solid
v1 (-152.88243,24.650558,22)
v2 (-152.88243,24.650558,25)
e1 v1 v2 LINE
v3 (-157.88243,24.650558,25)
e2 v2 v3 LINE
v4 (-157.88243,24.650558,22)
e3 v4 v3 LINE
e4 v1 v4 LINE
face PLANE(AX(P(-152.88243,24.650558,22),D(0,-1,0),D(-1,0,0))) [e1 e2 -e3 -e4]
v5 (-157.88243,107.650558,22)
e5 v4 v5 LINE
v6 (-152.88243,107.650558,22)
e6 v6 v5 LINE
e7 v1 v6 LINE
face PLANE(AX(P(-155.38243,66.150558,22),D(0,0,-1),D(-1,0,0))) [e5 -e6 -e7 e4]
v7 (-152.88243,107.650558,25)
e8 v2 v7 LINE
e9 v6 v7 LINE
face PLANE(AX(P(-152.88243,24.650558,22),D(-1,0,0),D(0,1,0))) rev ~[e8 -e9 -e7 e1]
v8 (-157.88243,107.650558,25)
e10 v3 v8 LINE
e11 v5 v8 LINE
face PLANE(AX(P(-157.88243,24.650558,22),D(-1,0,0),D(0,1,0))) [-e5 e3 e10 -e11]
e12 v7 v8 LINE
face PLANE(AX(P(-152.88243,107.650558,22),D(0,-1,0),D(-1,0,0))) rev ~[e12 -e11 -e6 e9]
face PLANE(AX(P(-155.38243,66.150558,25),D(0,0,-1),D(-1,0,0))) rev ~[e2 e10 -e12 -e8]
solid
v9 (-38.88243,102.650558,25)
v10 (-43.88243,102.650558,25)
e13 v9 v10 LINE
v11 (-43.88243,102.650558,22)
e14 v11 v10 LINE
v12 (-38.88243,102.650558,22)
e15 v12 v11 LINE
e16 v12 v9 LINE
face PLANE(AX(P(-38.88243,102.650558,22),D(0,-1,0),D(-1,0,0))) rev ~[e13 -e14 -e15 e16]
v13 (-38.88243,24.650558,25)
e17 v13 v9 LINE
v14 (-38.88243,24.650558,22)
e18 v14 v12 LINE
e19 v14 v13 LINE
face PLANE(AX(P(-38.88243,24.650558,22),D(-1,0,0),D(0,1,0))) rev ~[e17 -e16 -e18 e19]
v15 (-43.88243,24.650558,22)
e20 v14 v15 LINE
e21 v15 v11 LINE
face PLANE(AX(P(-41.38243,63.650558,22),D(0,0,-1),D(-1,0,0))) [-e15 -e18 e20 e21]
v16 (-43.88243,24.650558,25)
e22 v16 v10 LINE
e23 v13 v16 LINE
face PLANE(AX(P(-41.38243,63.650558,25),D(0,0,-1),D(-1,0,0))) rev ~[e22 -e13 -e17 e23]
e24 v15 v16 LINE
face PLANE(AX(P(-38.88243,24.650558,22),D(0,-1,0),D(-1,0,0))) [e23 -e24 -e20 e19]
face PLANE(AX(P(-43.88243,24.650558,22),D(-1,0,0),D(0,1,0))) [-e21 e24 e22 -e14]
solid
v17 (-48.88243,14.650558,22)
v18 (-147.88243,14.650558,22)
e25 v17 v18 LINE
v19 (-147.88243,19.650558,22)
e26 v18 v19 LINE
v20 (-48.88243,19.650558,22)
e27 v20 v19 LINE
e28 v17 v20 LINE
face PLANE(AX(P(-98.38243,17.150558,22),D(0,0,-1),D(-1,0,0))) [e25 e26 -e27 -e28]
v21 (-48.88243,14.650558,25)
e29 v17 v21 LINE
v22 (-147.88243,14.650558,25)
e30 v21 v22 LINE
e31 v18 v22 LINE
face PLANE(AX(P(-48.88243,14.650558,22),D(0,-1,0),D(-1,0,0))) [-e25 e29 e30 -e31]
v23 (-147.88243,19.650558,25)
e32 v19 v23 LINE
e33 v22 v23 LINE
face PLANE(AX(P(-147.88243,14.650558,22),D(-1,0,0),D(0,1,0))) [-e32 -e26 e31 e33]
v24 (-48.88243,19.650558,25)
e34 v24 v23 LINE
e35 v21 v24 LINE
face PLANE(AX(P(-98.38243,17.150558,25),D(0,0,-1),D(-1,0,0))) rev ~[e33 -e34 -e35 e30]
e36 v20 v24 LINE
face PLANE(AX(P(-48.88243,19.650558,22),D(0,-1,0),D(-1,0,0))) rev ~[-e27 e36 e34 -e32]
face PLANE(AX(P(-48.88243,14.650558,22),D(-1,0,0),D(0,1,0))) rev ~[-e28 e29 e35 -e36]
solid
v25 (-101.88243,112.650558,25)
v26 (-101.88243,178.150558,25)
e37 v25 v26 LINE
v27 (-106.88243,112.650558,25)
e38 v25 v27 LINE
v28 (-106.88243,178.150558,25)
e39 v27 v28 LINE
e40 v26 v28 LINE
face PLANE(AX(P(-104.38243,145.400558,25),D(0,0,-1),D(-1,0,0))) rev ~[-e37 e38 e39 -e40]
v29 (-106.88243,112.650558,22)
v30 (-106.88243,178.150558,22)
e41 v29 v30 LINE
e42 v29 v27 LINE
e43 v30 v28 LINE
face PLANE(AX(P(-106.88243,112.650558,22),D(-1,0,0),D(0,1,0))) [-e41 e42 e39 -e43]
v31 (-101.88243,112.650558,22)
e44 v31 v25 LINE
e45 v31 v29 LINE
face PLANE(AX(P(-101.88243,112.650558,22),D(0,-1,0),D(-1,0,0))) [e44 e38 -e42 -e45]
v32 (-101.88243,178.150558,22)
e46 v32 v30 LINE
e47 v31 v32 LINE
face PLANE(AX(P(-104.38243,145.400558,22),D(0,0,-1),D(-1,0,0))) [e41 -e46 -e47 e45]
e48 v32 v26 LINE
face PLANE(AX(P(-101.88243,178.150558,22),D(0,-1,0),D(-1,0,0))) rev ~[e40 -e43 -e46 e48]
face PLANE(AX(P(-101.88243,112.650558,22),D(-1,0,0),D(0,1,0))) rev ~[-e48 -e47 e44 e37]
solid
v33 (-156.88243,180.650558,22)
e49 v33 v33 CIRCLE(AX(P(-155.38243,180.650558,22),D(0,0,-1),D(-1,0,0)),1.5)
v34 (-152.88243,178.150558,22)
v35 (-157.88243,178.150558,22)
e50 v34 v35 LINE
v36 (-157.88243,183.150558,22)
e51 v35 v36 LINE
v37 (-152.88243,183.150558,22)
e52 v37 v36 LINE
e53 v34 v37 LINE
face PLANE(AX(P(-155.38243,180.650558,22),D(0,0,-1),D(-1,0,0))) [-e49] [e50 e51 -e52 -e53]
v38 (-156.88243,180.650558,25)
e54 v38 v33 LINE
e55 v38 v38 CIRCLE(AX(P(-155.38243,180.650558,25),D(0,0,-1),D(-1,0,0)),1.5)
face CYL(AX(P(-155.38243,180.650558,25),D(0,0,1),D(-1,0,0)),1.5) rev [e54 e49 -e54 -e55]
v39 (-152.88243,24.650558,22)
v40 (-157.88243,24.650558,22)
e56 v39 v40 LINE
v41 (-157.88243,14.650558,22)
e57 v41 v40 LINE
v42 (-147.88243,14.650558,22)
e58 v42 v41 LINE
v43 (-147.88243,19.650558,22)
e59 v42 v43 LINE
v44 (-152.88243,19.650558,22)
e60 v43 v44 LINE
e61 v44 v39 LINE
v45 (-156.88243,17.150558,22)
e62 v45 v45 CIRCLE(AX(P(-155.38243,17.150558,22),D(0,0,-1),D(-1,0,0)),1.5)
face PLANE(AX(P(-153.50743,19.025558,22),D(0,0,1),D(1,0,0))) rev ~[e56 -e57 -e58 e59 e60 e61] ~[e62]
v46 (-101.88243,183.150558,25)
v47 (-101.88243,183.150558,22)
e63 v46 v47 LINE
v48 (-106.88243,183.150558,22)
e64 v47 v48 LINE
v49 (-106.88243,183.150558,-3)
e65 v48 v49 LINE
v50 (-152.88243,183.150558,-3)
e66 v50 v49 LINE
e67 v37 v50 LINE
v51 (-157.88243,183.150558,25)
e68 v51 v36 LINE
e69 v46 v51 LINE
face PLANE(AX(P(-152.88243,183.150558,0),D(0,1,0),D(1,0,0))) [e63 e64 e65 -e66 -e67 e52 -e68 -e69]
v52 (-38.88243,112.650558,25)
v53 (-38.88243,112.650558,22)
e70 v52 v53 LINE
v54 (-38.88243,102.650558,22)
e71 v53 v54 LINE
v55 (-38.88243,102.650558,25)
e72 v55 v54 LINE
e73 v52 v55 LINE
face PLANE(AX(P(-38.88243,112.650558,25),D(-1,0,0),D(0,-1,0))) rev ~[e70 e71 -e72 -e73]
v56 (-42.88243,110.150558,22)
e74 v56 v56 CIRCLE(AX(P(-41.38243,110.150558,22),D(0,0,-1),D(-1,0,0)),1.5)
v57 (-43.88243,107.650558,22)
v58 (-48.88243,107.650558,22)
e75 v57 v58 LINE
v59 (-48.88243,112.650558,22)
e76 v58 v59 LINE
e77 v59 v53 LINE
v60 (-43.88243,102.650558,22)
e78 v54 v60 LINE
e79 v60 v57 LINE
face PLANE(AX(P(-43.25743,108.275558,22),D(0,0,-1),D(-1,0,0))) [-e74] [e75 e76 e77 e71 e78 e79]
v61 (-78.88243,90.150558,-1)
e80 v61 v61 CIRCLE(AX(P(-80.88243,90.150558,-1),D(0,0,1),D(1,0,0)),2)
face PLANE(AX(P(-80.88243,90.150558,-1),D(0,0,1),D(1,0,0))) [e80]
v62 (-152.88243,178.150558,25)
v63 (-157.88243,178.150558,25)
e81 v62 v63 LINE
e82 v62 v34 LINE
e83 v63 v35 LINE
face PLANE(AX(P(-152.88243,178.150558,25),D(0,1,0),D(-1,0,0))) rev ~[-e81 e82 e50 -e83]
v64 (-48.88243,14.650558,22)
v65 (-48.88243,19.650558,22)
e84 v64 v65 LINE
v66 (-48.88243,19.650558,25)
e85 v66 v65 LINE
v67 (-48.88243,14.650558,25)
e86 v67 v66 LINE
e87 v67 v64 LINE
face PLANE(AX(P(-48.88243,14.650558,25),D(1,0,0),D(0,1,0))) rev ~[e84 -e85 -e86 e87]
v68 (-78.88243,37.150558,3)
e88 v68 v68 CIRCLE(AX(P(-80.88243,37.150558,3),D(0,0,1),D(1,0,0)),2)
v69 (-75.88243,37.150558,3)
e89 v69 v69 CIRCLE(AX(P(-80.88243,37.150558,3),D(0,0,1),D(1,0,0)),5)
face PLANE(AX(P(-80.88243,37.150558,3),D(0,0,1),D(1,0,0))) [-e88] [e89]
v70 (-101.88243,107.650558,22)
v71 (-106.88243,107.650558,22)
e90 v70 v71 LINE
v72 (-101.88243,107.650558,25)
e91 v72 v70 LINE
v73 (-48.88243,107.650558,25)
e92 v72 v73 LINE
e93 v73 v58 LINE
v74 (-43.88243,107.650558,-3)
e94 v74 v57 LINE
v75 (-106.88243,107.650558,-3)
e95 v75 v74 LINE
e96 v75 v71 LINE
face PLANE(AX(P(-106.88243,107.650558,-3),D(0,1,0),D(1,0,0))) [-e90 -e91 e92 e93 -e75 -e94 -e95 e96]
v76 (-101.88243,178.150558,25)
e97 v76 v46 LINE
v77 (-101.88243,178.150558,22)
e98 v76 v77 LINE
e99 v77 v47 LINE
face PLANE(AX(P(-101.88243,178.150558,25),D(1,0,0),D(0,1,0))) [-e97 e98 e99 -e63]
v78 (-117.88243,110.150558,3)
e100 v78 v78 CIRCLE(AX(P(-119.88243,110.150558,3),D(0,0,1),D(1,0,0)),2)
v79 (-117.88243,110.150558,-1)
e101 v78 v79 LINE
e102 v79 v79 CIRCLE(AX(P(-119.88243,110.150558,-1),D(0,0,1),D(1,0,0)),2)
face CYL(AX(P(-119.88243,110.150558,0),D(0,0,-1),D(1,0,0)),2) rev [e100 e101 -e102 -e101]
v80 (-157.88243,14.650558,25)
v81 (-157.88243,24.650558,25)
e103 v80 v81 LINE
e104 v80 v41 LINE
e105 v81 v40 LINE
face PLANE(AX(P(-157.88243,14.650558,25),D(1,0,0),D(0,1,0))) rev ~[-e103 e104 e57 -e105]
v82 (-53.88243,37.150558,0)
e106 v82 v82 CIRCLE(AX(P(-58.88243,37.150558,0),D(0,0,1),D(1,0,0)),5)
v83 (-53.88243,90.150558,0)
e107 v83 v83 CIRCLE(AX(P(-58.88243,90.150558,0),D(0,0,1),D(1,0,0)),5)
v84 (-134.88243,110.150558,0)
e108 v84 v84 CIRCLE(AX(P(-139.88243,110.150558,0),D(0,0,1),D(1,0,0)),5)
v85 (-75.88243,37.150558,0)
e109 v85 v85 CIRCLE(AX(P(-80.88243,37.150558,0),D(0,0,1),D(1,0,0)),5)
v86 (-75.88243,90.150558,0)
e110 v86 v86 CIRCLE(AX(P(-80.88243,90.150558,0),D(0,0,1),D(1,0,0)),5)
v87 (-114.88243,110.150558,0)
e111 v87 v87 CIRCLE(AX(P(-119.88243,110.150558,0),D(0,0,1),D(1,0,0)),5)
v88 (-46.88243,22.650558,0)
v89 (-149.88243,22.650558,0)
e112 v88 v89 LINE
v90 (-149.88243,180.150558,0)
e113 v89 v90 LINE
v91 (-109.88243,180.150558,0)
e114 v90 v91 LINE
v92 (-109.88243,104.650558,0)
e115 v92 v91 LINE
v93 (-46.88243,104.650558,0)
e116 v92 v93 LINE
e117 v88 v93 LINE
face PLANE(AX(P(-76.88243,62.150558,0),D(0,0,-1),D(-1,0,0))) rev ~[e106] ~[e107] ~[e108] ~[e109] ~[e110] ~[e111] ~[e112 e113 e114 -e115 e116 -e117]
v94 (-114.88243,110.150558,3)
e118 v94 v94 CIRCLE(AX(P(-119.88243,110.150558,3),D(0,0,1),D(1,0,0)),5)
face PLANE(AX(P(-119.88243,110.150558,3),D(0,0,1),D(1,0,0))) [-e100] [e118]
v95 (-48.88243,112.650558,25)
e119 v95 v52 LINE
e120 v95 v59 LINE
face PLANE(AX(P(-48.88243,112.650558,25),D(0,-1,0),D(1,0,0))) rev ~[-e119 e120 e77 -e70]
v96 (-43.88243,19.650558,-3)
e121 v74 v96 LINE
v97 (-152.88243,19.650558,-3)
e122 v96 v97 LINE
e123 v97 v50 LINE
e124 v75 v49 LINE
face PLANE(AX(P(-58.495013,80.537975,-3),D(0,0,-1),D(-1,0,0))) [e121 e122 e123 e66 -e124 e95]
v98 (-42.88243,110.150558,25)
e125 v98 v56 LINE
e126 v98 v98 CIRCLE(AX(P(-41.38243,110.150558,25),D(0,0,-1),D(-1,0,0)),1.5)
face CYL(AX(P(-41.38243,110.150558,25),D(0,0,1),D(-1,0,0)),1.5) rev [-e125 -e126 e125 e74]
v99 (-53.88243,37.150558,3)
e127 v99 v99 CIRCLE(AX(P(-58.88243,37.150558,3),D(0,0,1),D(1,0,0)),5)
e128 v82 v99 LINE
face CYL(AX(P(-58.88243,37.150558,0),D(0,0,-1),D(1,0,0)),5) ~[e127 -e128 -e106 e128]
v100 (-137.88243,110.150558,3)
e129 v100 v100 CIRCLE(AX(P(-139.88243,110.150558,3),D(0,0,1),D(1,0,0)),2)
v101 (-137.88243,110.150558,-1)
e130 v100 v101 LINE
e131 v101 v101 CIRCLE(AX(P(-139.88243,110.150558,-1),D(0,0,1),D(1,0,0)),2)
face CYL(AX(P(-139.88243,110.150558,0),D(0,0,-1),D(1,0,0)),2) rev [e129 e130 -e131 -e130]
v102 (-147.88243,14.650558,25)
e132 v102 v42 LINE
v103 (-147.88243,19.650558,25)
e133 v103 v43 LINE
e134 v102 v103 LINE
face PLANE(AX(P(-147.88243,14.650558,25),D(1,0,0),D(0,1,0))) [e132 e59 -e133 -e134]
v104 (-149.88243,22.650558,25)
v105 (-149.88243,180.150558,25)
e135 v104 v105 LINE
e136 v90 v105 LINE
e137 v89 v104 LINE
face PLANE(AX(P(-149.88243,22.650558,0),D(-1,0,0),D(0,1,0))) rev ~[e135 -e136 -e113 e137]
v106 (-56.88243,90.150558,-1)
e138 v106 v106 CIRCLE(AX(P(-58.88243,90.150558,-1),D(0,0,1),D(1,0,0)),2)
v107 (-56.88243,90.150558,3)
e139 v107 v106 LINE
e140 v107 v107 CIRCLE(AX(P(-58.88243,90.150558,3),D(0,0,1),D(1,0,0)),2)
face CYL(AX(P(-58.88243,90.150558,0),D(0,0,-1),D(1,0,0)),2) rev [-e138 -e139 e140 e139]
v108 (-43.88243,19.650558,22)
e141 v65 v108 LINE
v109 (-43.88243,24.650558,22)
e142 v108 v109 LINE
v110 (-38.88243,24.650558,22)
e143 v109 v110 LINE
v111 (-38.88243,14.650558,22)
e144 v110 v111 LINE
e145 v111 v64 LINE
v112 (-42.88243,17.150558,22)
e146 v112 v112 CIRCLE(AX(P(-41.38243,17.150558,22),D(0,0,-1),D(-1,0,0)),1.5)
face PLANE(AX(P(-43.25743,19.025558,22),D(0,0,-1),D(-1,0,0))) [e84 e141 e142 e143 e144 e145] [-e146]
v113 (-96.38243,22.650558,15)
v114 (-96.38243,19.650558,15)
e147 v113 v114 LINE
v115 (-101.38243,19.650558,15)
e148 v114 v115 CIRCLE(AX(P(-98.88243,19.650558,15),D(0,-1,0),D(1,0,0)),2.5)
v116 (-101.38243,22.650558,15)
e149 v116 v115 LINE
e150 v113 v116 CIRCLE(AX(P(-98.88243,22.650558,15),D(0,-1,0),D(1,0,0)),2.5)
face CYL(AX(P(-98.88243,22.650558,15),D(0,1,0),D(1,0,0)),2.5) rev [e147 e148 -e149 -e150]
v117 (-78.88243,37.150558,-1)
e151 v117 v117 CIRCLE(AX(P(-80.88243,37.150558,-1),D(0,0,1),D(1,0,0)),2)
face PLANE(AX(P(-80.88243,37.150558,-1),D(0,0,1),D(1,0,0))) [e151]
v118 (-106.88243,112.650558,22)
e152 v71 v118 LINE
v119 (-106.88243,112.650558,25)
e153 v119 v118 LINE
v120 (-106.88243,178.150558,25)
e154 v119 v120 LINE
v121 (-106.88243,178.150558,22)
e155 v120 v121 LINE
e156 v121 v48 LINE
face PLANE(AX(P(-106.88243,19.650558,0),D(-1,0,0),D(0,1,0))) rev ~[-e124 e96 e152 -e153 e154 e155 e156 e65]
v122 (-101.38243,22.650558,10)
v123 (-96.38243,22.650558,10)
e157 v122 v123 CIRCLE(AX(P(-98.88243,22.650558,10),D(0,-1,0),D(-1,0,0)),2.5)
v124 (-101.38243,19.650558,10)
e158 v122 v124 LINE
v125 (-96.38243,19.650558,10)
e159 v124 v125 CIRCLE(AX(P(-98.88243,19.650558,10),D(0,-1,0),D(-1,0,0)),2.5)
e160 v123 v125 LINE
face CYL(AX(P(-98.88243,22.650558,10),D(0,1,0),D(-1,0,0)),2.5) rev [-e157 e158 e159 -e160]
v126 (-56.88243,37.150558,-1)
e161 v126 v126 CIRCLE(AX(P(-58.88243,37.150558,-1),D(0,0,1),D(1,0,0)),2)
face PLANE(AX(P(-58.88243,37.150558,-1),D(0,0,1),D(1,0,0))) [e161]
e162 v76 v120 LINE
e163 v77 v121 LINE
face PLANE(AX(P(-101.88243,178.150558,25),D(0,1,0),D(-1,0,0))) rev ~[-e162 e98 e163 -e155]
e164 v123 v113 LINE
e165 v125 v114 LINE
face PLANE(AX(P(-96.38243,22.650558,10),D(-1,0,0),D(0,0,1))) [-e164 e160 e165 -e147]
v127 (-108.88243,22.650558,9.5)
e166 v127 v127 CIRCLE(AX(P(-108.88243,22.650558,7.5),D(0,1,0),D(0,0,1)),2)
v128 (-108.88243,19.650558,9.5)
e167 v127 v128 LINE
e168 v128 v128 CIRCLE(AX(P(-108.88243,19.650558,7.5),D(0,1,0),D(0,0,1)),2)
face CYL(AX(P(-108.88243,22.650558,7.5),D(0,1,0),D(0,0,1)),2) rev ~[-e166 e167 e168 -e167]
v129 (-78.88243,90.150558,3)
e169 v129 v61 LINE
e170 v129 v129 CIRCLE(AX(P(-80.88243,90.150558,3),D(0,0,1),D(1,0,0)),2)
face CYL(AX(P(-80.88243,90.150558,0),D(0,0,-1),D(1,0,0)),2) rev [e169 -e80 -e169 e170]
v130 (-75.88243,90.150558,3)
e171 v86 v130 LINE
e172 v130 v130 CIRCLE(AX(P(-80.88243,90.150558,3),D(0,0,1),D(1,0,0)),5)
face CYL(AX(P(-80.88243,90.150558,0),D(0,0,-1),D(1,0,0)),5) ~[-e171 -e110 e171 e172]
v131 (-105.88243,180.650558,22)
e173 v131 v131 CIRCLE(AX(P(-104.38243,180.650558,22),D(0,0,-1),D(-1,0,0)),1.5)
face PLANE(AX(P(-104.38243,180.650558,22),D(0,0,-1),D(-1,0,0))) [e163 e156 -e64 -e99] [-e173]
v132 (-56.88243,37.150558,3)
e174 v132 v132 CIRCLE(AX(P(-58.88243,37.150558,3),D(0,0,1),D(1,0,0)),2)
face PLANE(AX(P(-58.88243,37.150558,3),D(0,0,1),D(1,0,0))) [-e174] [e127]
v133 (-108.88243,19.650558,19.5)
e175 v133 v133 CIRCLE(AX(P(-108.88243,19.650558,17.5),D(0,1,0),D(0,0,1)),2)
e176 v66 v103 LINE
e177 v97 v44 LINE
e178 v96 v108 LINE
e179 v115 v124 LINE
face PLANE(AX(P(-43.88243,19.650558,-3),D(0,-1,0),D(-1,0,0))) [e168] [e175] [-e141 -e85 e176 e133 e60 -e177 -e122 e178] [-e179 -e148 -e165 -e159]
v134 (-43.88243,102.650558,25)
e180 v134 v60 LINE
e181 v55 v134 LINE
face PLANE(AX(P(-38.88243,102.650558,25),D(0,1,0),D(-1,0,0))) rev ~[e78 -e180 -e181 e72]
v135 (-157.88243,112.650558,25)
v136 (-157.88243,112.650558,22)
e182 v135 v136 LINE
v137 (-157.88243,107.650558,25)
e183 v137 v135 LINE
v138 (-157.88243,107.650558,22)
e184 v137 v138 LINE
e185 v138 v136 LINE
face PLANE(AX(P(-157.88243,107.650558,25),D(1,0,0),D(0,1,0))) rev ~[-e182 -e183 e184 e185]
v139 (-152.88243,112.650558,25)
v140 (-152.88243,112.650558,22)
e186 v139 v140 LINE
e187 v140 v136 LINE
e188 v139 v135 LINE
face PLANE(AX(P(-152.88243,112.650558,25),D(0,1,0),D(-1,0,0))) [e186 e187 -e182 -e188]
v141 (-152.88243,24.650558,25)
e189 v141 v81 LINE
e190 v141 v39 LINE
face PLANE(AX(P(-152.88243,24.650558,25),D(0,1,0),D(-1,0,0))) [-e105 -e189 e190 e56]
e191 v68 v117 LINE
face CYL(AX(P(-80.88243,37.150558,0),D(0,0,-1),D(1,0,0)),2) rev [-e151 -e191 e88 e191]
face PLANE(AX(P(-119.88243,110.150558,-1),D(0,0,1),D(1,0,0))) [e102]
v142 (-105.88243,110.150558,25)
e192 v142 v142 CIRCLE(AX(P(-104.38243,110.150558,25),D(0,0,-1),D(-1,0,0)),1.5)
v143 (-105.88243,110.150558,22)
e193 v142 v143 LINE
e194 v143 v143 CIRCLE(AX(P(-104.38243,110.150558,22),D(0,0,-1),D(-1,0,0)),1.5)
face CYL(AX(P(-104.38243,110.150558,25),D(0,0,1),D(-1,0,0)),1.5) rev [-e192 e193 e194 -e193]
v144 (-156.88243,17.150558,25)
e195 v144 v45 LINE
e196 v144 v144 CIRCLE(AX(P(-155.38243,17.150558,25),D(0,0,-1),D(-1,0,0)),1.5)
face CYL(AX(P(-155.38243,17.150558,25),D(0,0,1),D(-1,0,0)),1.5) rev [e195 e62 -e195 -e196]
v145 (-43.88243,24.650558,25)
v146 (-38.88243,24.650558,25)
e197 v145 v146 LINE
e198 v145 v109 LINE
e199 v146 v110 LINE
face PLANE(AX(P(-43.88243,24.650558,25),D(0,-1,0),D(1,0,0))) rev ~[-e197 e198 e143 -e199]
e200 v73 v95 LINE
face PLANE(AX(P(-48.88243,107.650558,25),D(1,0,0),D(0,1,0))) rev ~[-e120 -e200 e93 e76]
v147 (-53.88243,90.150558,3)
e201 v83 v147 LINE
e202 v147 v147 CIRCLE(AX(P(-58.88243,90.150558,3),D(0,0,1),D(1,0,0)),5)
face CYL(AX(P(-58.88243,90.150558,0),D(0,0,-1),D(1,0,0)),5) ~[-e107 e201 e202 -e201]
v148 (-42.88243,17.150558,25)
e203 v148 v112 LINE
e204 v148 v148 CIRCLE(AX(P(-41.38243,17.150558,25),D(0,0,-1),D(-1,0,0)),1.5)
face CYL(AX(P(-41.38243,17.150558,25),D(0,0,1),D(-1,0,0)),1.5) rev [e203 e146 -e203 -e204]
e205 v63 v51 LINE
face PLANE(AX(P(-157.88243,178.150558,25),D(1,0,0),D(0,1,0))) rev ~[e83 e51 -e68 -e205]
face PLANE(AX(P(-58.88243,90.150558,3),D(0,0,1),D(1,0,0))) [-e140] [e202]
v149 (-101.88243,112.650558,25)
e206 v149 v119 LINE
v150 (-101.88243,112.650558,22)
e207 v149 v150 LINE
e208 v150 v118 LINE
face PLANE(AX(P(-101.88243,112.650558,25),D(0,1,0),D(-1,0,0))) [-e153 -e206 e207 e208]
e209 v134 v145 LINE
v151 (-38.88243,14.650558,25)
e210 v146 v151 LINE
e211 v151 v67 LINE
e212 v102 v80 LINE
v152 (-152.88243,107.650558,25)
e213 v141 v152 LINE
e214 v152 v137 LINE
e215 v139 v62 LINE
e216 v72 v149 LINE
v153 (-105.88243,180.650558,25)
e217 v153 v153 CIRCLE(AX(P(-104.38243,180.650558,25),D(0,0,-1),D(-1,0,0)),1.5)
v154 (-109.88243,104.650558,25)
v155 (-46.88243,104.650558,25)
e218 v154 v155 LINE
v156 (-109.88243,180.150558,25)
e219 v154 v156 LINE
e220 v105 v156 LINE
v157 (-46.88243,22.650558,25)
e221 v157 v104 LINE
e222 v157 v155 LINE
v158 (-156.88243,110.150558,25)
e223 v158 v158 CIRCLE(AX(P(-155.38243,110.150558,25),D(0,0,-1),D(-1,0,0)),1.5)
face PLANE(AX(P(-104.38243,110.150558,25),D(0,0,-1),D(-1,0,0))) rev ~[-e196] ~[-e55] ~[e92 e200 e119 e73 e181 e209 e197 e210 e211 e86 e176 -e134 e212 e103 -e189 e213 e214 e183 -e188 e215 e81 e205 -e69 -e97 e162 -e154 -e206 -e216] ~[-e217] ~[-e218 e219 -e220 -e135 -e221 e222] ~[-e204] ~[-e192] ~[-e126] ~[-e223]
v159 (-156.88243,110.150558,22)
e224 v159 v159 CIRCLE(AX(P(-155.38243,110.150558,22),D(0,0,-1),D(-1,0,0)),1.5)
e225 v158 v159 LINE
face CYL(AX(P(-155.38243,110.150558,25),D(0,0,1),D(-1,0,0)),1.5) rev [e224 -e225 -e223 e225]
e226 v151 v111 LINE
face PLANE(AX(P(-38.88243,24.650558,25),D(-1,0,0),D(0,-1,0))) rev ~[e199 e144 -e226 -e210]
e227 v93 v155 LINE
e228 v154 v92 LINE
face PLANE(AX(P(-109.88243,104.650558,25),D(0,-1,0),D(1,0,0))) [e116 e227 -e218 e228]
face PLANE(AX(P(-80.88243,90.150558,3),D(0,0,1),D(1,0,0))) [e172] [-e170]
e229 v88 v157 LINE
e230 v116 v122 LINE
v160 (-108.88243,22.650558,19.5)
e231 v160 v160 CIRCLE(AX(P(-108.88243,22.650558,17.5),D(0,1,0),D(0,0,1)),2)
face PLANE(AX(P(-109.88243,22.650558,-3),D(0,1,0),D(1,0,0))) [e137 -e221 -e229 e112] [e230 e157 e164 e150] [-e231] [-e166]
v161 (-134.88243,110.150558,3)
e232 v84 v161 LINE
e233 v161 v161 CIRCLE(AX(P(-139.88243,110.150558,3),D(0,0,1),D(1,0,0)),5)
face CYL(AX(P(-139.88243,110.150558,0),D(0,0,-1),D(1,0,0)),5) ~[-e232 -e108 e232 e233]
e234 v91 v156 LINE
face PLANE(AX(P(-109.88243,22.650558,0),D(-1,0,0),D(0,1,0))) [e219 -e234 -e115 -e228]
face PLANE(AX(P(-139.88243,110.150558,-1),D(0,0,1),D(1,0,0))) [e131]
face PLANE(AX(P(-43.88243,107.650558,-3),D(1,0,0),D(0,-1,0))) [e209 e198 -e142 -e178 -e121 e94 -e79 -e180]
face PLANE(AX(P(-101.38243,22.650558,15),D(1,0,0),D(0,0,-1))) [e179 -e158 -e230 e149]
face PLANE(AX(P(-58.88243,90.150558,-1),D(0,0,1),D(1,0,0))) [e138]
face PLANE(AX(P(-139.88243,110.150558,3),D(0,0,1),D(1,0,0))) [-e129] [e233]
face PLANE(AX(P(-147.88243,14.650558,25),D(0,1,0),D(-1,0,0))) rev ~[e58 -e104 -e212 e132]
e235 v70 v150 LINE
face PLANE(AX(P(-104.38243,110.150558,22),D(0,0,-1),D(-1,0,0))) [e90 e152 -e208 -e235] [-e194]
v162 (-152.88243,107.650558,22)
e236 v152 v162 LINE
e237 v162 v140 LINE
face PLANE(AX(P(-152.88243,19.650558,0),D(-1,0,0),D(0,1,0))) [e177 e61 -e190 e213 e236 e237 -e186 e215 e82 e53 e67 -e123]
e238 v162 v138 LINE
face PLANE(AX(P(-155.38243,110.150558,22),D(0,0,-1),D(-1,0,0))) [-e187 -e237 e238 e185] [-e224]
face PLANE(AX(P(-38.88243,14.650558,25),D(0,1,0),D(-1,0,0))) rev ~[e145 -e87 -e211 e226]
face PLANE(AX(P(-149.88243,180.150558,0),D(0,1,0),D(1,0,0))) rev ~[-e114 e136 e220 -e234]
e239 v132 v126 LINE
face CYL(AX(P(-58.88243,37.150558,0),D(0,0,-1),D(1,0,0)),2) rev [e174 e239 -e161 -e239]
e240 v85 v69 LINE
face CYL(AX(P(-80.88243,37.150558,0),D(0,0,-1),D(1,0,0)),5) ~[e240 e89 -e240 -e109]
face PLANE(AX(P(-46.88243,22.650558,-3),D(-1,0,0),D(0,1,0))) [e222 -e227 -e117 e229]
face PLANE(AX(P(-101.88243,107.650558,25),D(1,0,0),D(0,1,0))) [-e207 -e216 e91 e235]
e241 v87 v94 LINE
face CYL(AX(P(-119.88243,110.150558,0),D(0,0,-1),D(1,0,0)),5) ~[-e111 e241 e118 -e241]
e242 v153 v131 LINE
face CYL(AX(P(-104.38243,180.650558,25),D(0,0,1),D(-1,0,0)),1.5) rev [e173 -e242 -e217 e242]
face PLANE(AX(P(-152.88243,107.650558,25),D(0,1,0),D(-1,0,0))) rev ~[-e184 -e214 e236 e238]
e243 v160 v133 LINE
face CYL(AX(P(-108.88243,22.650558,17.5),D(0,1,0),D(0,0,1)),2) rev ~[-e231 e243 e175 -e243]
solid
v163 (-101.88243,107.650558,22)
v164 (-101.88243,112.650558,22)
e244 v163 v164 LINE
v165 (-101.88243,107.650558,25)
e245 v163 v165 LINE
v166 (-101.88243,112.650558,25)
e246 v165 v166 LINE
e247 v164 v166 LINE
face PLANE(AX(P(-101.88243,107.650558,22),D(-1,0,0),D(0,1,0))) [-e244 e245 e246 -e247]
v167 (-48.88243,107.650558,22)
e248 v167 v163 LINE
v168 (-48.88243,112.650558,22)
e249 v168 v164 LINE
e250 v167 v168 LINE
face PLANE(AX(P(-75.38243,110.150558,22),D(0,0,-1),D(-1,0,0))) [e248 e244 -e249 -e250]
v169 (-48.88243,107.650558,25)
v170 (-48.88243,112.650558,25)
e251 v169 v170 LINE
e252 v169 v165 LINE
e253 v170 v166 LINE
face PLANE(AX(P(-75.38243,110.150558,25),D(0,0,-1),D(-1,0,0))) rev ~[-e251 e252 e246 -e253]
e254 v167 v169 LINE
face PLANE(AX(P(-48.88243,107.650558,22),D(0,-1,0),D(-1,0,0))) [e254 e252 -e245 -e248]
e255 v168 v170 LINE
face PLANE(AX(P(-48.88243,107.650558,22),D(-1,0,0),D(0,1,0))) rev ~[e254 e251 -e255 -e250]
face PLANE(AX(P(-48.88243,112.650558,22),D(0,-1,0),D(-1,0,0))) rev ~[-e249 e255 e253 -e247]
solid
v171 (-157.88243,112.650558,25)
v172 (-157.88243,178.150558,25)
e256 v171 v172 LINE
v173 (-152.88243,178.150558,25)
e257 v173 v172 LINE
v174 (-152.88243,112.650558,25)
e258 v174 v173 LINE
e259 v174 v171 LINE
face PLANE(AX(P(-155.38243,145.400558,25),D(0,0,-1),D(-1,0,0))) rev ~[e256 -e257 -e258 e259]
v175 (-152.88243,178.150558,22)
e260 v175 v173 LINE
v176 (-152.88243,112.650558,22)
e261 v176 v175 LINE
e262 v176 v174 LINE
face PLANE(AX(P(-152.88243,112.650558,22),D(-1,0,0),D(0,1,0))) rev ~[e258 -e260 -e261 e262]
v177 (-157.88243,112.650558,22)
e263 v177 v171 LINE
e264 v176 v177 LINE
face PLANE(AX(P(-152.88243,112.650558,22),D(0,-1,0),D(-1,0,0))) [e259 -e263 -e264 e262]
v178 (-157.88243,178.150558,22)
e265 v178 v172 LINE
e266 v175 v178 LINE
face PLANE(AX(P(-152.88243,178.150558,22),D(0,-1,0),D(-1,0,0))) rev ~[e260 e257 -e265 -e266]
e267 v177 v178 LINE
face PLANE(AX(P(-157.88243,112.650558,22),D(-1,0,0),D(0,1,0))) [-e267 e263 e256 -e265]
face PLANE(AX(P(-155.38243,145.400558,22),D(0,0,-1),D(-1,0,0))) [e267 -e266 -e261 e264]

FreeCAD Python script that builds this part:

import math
import FreeCAD as App
import Part
import Sketcher

V = App.Vector
Q = App.Units.Quantity


def add_polygon(sketch, points):
    """Adds a closed chain of lines whose ends are joined by coincident constraints."""
    first, n = sketch.GeometryCount, len(points)
    for a, b in zip(points, points[1:] + points[:1]):
        sketch.addGeometry(Part.LineSegment(App.Vector(*a, 0), App.Vector(*b, 0)), False)
    for i in range(n):
        sketch.addConstraint(Sketcher.Constraint("Coincident", first + i, 2, first + (i + 1) % n, 1))

doc = App.newDocument("Part")
body = doc.addObject("PartDesign::Body", "Body")

# Sketch on XY plane
sketch1 = body.newObject("Sketcher::SketchObject", "Sketch")
sketch1.AttachmentSupport = (doc.getObject("XY_Plane"), [""])
sketch1.MapMode = "FlatFace"
add_polygon(sketch1, [(-149.88243, 22.650558), (-109.88243, 22.650558), (-109.88243, 180.150558), (-149.88243, 180.150558)])  # lines 0-3
sketch1.addConstraint([
    Sketcher.Constraint("Horizontal", 0),
    Sketcher.Constraint("Vertical", 1),
    Sketcher.Constraint("Horizontal", 2),
    Sketcher.Constraint("Vertical", 3),
    Sketcher.Constraint("DistanceX", 0, 1, 0, 2, Q("40 mm")),
    Sketcher.Constraint("DistanceY", 1, 1, 1, 2, Q("157.5 mm")),
    Sketcher.Constraint("DistanceX", 0, 2, -1, 1, Q("109.88243 mm")),
    Sketcher.Constraint("DistanceY", -1, 1, 0, 2, Q("22.650558 mm")),
])
pad1 = body.newObject("PartDesign::Pad", "Pad")
pad1.Profile = sketch1
pad1.Length = 3
pad1.Reversed = True
body2 = doc.addObject("PartDesign::Body", "Body001")

# Sketch on XY plane
sketch2 = body2.newObject("Sketcher::SketchObject", "Sketch001")
sketch2.AttachmentSupport = (doc.getObject("XY_Plane001"), [""])
sketch2.MapMode = "FlatFace"
add_polygon(sketch2, [(-152.88243, 183.150558), (-152.88243, 19.650558), (-106.88243, 19.650558), (-106.88243, 183.150558)])  # lines 0-3
sketch2.addConstraint([
    Sketcher.Constraint("Vertical", 0),
    Sketcher.Constraint("Horizontal", 1),
    Sketcher.Constraint("Vertical", 2),
    Sketcher.Constraint("Horizontal", 3),
    Sketcher.Constraint("DistanceX", 1, 1, 1, 2, Q("46 mm")),
    Sketcher.Constraint("DistanceY", 0, 2, 0, 1, Q("163.5 mm")),
    Sketcher.Constraint("DistanceX", 0, 2, -1, 1, Q("152.88243 mm")),
    Sketcher.Constraint("DistanceY", -1, 1, 0, 2, Q("19.650558 mm")),
])
pad2 = body2.newObject("PartDesign::Pad", "Pad001")
pad2.Profile = sketch2
pad2.Length = 3
pad2.Reversed = True
doc.recompute()

boolean = body.newObject("PartDesign::Boolean", "Boolean")
boolean.Type = "Fuse"
boolean.addObjects([body2])

# Sketch on XY plane
sketch3 = body.newObject("Sketcher::SketchObject", "Sketch002")
sketch3.AttachmentSupport = (doc.getObject("XY_Plane"), [""])
sketch3.MapMode = "FlatFace"
add_polygon(sketch3, [(-152.88243, 183.150558), (-152.88243, 19.650558), (-106.88243, 19.650558), (-106.88243, 183.150558)])  # lines 0-3
add_polygon(sketch3, [(-109.88243, 22.650558), (-149.88243, 22.650558), (-149.88243, 180.150558), (-109.88243, 180.150558)])  # lines 4-7
sketch3.addConstraint([
    Sketcher.Constraint("Vertical", 0),
    Sketcher.Constraint("Horizontal", 1),
    Sketcher.Constraint("Vertical", 2),
    Sketcher.Constraint("Horizontal", 3),
    Sketcher.Constraint("Horizontal", 4),
    Sketcher.Constraint("Vertical", 5),
    Sketcher.Constraint("Horizontal", 6),
    Sketcher.Constraint("Vertical", 7),
    Sketcher.Constraint("DistanceX", 1, 1, 1, 2, Q("46 mm")),
    Sketcher.Constraint("DistanceX", 4, 2, 4, 1, Q("40 mm")),
    Sketcher.Constraint("DistanceY", 0, 2, 0, 1, Q("163.5 mm")),
    Sketcher.Constraint("DistanceY", 5, 1, 5, 2, Q("157.5 mm")),
    Sketcher.Constraint("DistanceX", 0, 2, 4, 2, Q("3 mm")),
    Sketcher.Constraint("DistanceY", 0, 2, 4, 2, Q("3 mm")),
    Sketcher.Constraint("DistanceX", 0, 2, -1, 1, Q("152.88243 mm")),
    Sketcher.Constraint("DistanceY", -1, 1, 0, 2, Q("19.650558 mm")),
])
pad3 = body.newObject("PartDesign::Pad", "Pad002")
pad3.Profile = sketch3
pad3.Length = 25

# Sketch on XY plane
sketch4 = body.newObject("Sketcher::SketchObject", "Sketch003")
sketch4.AttachmentSupport = (doc.getObject("XY_Plane"), [""])
sketch4.MapMode = "FlatFace"
sketch4.AttachmentOffset = App.Placement(V(0, 0, -3), App.Rotation())
add_polygon(sketch4, [(-46.88243, 104.650558), (-46.88243, 19.650558), (-106.88243, 19.650558), (-106.88243, 104.650558)])  # lines 0-3
sketch4.addConstraint([
    Sketcher.Constraint("Vertical", 0),
    Sketcher.Constraint("Horizontal", 1),
    Sketcher.Constraint("Vertical", 2),
    Sketcher.Constraint("Horizontal", 3),
    Sketcher.Constraint("DistanceX", 1, 2, 1, 1, Q("60 mm")),
    Sketcher.Constraint("DistanceY", 0, 2, 0, 1, Q("85 mm")),
    Sketcher.Constraint("DistanceX", 0, 2, -1, 1, Q("46.88243 mm")),
    Sketcher.Constraint("DistanceY", -1, 1, 0, 2, Q("19.650558 mm")),
])
pad4 = body.newObject("PartDesign::Pad", "Pad003")
pad4.Profile = sketch4
pad4.Length = 3

# Sketch on XY plane
sketch5 = body.newObject("Sketcher::SketchObject", "Sketch004")
sketch5.AttachmentSupport = (doc.getObject("XY_Plane"), [""])
sketch5.MapMode = "FlatFace"
sketch5.AttachmentOffset = App.Placement(V(0, 0, -3), App.Rotation())
add_polygon(sketch5, [(-106.88243, 104.650558), (-106.88243, 107.650558), (-43.88243, 107.650558), (-43.88243, 19.650558), (-106.88243, 19.650558), (-109.88243, 22.650558), (-46.88243, 22.650558), (-46.88243, 104.650558)])  # lines 0-7
sketch5.addConstraint([
    Sketcher.Constraint("Vertical", 0),
    Sketcher.Constraint("Horizontal", 1),
    Sketcher.Constraint("Vertical", 2),
    Sketcher.Constraint("Horizontal", 3),
    Sketcher.Constraint("Horizontal", 5),
    Sketcher.Constraint("Vertical", 6),
    Sketcher.Constraint("Horizontal", 7),
    Sketcher.Constraint("Vertical", 0, 2, 3, 2),
    Sketcher.Constraint("Equal", 3, 5),
    Sketcher.Constraint("DistanceX", 1, 1, 1, 2, Q("63 mm")),
    Sketcher.Constraint("DistanceX", 7, 2, 7, 1, Q("60 mm")),
    Sketcher.Constraint("DistanceY", 0, 1, 0, 2, Q("3 mm")),
    Sketcher.Constraint("DistanceY", 2, 2, 2, 1, Q("88 mm")),
    Sketcher.Constraint("DistanceY", 6, 1, 6, 2, Q("82 mm")),
    Sketcher.Constraint("DistanceX", 0, 2, -1, 1, Q("106.88243 mm")),
    Sketcher.Constraint("DistanceY", -1, 1, 0, 2, Q("107.650558 mm")),
])
pad5 = body.newObject("PartDesign::Pad", "Pad004")
pad5.Profile = sketch5
pad5.Length = 28

# Sketch on XY plane
sketch6 = body.newObject("Sketcher::SketchObject", "Sketch005")
sketch6.AttachmentSupport = (doc.getObject("XY_Plane"), [""])
sketch6.MapMode = "FlatFace"
sketch6.AttachmentOffset = App.Placement(V(0, 0, 25), App.Rotation())
add_polygon(sketch6, [(-109.88243, 104.650558), (-109.88243, 22.650558), (-106.88243, 22.650558), (-106.88243, 104.650558)])  # lines 0-3
sketch6.addConstraint([
    Sketcher.Constraint("Vertical", 0),
    Sketcher.Constraint("Horizontal", 1),
    Sketcher.Constraint("Vertical", 2),
    Sketcher.Constraint("Horizontal", 3),
    Sketcher.Constraint("DistanceX", 1, 1, 1, 2, Q("3 mm")),
    Sketcher.Constraint("DistanceY", 0, 2, 0, 1, Q("82 mm")),
    Sketcher.Constraint("DistanceX", 0, 2, -1, 1, Q("109.88243 mm")),
    Sketcher.Constraint("DistanceY", -1, 1, 0, 2, Q("22.650558 mm")),
])
pocket1 = body.newObject("PartDesign::Pocket", "Pocket")
pocket1.Profile = sketch6
pocket1.Length = 25

# Sketch on XY plane
sketch7 = body.newObject("Sketcher::SketchObject", "Sketch006")
sketch7.AttachmentSupport = (doc.getObject("XY_Plane"), [""])
sketch7.MapMode = "FlatFace"
sketch7.addGeometry([
    Part.Circle(V(-119.88243, 110.150558, 0), V(0, 0, 1), 5),
    Part.Circle(V(-119.88243, 110.150558, 0), V(0, 0, 1), 2),
    Part.Circle(V(-139.88243, 110.150558, 0), V(0, 0, 1), 5),
    Part.Circle(V(-139.88243, 110.150558, 0), V(0, 0, 1), 2),
], False)
sketch7.addConstraint([
    Sketcher.Constraint("Coincident", 1, 3, 0, 3),
    Sketcher.Constraint("Coincident", 3, 3, 2, 3),
    Sketcher.Constraint("Equal", 0, 2),
    Sketcher.Constraint("Equal", 1, 3),
    Sketcher.Constraint("Horizontal", 1, 3, 2, 3),
    Sketcher.Constraint("Diameter", 0, Q("10 mm")),
    Sketcher.Constraint("Diameter", 1, Q("4 mm")),
    Sketcher.Constraint("DistanceX", 2, 3, 0, 3, Q("20 mm")),
    Sketcher.Constraint("DistanceX", 0, 3, -1, 1, Q("119.88243 mm")),
    Sketcher.Constraint("DistanceY", -1, 1, 0, 3, Q("110.150558 mm")),
])
pad6 = body.newObject("PartDesign::Pad", "Pad005")
pad6.Profile = sketch7
pad6.Length = 3

# Sketch on XY plane
sketch8 = body.newObject("Sketcher::SketchObject", "Sketch007")
sketch8.AttachmentSupport = (doc.getObject("XY_Plane"), [""])
sketch8.MapMode = "FlatFace"
sketch8.addGeometry([
    Part.Circle(V(-80.88243, 90.150558, 0), V(0, 0, 1), 5),  # 0
    Part.Circle(V(-80.88243, 90.150558, 0), V(0, 0, 1), 2),  # 1
    Part.Circle(V(-58.88243, 90.150558, 0), V(0, 0, 1), 5),  # 2
    Part.Circle(V(-58.88243, 90.150558, 0), V(0, 0, 1), 2),  # 3
    Part.Circle(V(-58.88243, 37.150558, 0), V(0, 0, 1), 5),  # 4
    Part.Circle(V(-58.88243, 37.150558, 0), V(0, 0, 1), 2),  # 5
    Part.Circle(V(-80.88243, 37.150558, 0), V(0, 0, 1), 5),  # 6
    Part.Circle(V(-80.88243, 37.150558, 0), V(0, 0, 1), 2),  # 7
], False)
sketch8.addConstraint([
    Sketcher.Constraint("Coincident", 1, 3, 0, 3),
    Sketcher.Constraint("Coincident", 3, 3, 2, 3),
    Sketcher.Constraint("Coincident", 5, 3, 4, 3),
    Sketcher.Constraint("Coincident", 7, 3, 6, 3),
    Sketcher.Constraint("Equal", 0, 2),
    Sketcher.Constraint("Equal", 1, 3),
    Sketcher.Constraint("Equal", 2, 4),
    Sketcher.Constraint("Equal", 3, 5),
    Sketcher.Constraint("Equal", 4, 6),
    Sketcher.Constraint("Equal", 5, 7),
    Sketcher.Constraint("Horizontal", 1, 3, 2, 3),
    Sketcher.Constraint("Horizontal", 5, 3, 6, 3),
    Sketcher.Constraint("Vertical", 3, 3, 4, 3),
    Sketcher.Constraint("Vertical", 1, 3, 6, 3),
    Sketcher.Constraint("Diameter", 0, Q("10 mm")),
    Sketcher.Constraint("Diameter", 1, Q("4 mm")),
    Sketcher.Constraint("DistanceX", 0, 3, 2, 3, Q("22 mm")),
    Sketcher.Constraint("DistanceY", 4, 3, 2, 3, Q("53 mm")),
    Sketcher.Constraint("DistanceX", 0, 3, -1, 1, Q("80.88243 mm")),
    Sketcher.Constraint("DistanceY", -1, 1, 0, 3, Q("90.150558 mm")),
])
pad7 = body.newObject("PartDesign::Pad", "Pad006")
pad7.Profile = sketch8
pad7.Length = 3

# Sketch on XY plane
sketch9 = body.newObject("Sketcher::SketchObject", "Sketch008")
sketch9.AttachmentSupport = (doc.getObject("XY_Plane"), [""])
sketch9.MapMode = "FlatFace"
sketch9.AttachmentOffset = App.Placement(V(0, 0, -1), App.Rotation())
sketch9.addGeometry([
    Part.Circle(V(-139.88243, 110.150558, 0), V(0, 0, 1), 2),
    Part.Circle(V(-119.88243, 110.150558, 0), V(0, 0, 1), 2),
], False)
sketch9.addConstraint([
    Sketcher.Constraint("Equal", 0, 1),
    Sketcher.Constraint("Horizontal", 0, 3, 1, 3),
    Sketcher.Constraint("Diameter", 0, Q("4 mm")),
    Sketcher.Constraint("DistanceX", 0, 3, 1, 3, Q("20 mm")),
    Sketcher.Constraint("DistanceX", 0, 3, -1, 1, Q("139.88243 mm")),
    Sketcher.Constraint("DistanceY", -1, 1, 0, 3, Q("110.150558 mm")),
])
pocket2 = body.newObject("PartDesign::Pocket", "Pocket001")
pocket2.Profile = sketch9
pocket2.Length = 1
pocket2.Reversed = True

# Sketch on XY plane
sketch10 = body.newObject("Sketcher::SketchObject", "Sketch009")
sketch10.AttachmentSupport = (doc.getObject("XY_Plane"), [""])
sketch10.MapMode = "FlatFace"
sketch10.AttachmentOffset = App.Placement(V(0, 0, -1), App.Rotation())
sketch10.addGeometry([
    Part.Circle(V(-80.88243, 90.150558, 0), V(0, 0, 1), 2),
    Part.Circle(V(-58.88243, 90.150558, 0), V(0, 0, 1), 2),
    Part.Circle(V(-80.88243, 37.150558, 0), V(0, 0, 1), 2),
    Part.Circle(V(-58.88243, 37.150558, 0), V(0, 0, 1), 2),
], False)
sketch10.addConstraint([
    Sketcher.Constraint("Equal", 0, 1),
    Sketcher.Constraint("Equal", 1, 2),
    Sketcher.Constraint("Equal", 2, 3),
    Sketcher.Constraint("Horizontal", 0, 3, 1, 3),
    Sketcher.Constraint("Horizontal", 2, 3, 3, 3),
    Sketcher.Constraint("Vertical", 0, 3, 2, 3),
    Sketcher.Constraint("Vertical", 1, 3, 3, 3),
    Sketcher.Constraint("Diameter", 0, Q("4 mm")),
    Sketcher.Constraint("DistanceX", 0, 3, 1, 3, Q("22 mm")),
    Sketcher.Constraint("DistanceY", 2, 3, 0, 3, Q("53 mm")),
    Sketcher.Constraint("DistanceX", 0, 3, -1, 1, Q("80.88243 mm")),
    Sketcher.Constraint("DistanceY", -1, 1, 0, 3, Q("90.150558 mm")),
])
pocket3 = body.newObject("PartDesign::Pocket", "Pocket002")
pocket3.Profile = sketch10
pocket3.Length = 1
pocket3.Reversed = True

# Sketch on XZ plane
sketch11 = body.newObject("Sketcher::SketchObject", "Sketch010")
sketch11.AttachmentSupport = (doc.getObject("XZ_Plane"), [""])
sketch11.MapMode = "FlatFace"
sketch11.AttachmentOffset = App.Placement(V(0, 0, -22.650558), App.Rotation())
sketch11.addGeometry([
    Part.Circle(V(-108.88243, 17.5, 0), V(0, 0, 1), 2),  # 0
    Part.Circle(V(-108.88243, 7.5, 0), V(0, 0, 1), 2),  # 1
    Part.LineSegment(V(-96.38243, 15, 0), V(-96.38243, 10, 0)),  # 2
    Part.ArcOfCircle(Part.Circle(V(-98.88243, 10, 0), V(0, 0, 1), 2.5), math.radians(180), math.radians(360)),  # 3
    Part.LineSegment(V(-101.38243, 10, 0), V(-101.38243, 15, 0)),  # 4
    Part.ArcOfCircle(Part.Circle(V(-98.88243, 15, 0), V(0, 0, 1), 2.5), math.radians(0), math.radians(180)),  # 5
], False)
sketch11.addConstraint([
    Sketcher.Constraint("Tangent", 2, 2, 3, 2),
    Sketcher.Constraint("Tangent", 3, 1, 4, 1),
    Sketcher.Constraint("Tangent", 4, 2, 5, 2),
    Sketcher.Constraint("Tangent", 5, 1, 2, 1),
    Sketcher.Constraint("Vertical", 2),
    Sketcher.Constraint("Vertical", 4),
    Sketcher.Constraint("Equal", 0, 1),
    Sketcher.Constraint("Vertical", 0, 3, 1, 3),
    Sketcher.Constraint("Diameter", 0, Q("4 mm")),
    Sketcher.Constraint("Radius", 3, Q("2.5 mm")),
    Sketcher.Constraint("DistanceY", 2, 2, 2, 1, Q("5 mm")),
    Sketcher.Constraint("DistanceY", -1, 1, 3, 3, Q("10 mm")),
    Sketcher.Constraint("DistanceY", 1, 3, 0, 3, Q("10 mm")),
    Sketcher.Constraint("DistanceX", 1, 3, 3, 3, Q("10 mm")),
    Sketcher.Constraint("DistanceY", -1, 1, 0, 3, Q("17.5 mm")),
    Sketcher.Constraint("DistanceX", 0, 3, -1, 1, Q("108.88243 mm")),
])
pocket4 = body.newObject("PartDesign::Pocket", "Pocket003")
pocket4.Profile = sketch11
pocket4.Length = 3
pocket4.Reversed = True

# Sketch on XY plane
sketch12 = body.newObject("Sketcher::SketchObject", "Sketch011")
sketch12.AttachmentSupport = (doc.getObject("XY_Plane"), [""])
sketch12.MapMode = "FlatFace"
sketch12.AttachmentOffset = App.Placement(V(0, 0, 25), App.Rotation())
add_polygon(sketch12, [(-101.88243, 112.650558), (-101.88243, 107.650558), (-106.88243, 107.650558), (-106.88243, 112.650558)])  # lines 0-3
sketch12.addGeometry(Part.Circle(V(-104.38243, 110.150558, 0), V(0, 0, 1), 1.5), False)  # 4
add_polygon(sketch12, [(-38.88243, 112.650558), (-38.88243, 102.650558), (-43.88243, 102.650558), (-43.88243, 107.650558), (-48.88243, 107.650558), (-48.88243, 112.650558)])  # lines 5-10
sketch12.addGeometry(Part.Circle(V(-41.38243, 110.150558, 0), V(0, 0, 1), 1.5), False)  # 11
add_polygon(sketch12, [(-38.88243, 14.650558), (-48.88243, 14.650558), (-48.88243, 19.650558), (-43.88243, 19.650558), (-43.88243, 24.650558), (-38.88243, 24.650558)])  # lines 12-17
sketch12.addGeometry(Part.Circle(V(-41.38243, 17.150558, 0), V(0, 0, 1), 1.5), False)  # 18
add_polygon(sketch12, [(-147.88243, 14.650558), (-157.88243, 14.650558), (-157.88243, 24.650558), (-152.88243, 24.650558), (-152.88243, 19.650558), (-147.88243, 19.650558)])  # lines 19-24
sketch12.addGeometry(Part.Circle(V(-155.38243, 17.150558, 0), V(0, 0, 1), 1.5), False)  # 25
add_polygon(sketch12, [(-101.88243, 183.150558), (-101.88243, 178.150558), (-106.88243, 178.150558), (-106.88243, 183.150558)])  # lines 26-29
sketch12.addGeometry(Part.Circle(V(-104.38243, 180.650558, 0), V(0, 0, 1), 1.5), False)  # 30
add_polygon(sketch12, [(-152.88243, 183.150558), (-152.88243, 178.150558), (-157.88243, 178.150558), (-157.88243, 183.150558)])  # lines 31-34
sketch12.addGeometry(Part.Circle(V(-155.38243, 180.650558, 0), V(0, 0, 1), 1.5), False)  # 35
add_polygon(sketch12, [(-152.88243, 112.650558), (-152.88243, 107.650558), (-157.88243, 107.650558), (-157.88243, 112.650558)])  # lines 36-39
sketch12.addGeometry(Part.Circle(V(-155.38243, 110.150558, 0), V(0, 0, 1), 1.5), False)  # 40
sketch12.addConstraint([
    Sketcher.Constraint("Vertical", 0),
    Sketcher.Constraint("Horizontal", 1),
    Sketcher.Constraint("Vertical", 2),
    Sketcher.Constraint("Horizontal", 3),
    Sketcher.Constraint("Vertical", 5),
    Sketcher.Constraint("Horizontal", 6),
    Sketcher.Constraint("Vertical", 7),
    Sketcher.Constraint("Horizontal", 8),
    Sketcher.Constraint("Vertical", 9),
    Sketcher.Constraint("Horizontal", 10),
    Sketcher.Constraint("Horizontal", 12),
    Sketcher.Constraint("Vertical", 13),
    Sketcher.Constraint("Horizontal", 14),
    Sketcher.Constraint("Vertical", 15),
    Sketcher.Constraint("Horizontal", 16),
    Sketcher.Constraint("Vertical", 17),
    Sketcher.Constraint("Horizontal", 19),
    Sketcher.Constraint("Vertical", 20),
    Sketcher.Constraint("Horizontal", 21),
    Sketcher.Constraint("Vertical", 22),
    Sketcher.Constraint("Horizontal", 23),
    Sketcher.Constraint("Vertical", 24),
    Sketcher.Constraint("Vertical", 26),
    Sketcher.Constraint("Horizontal", 27),
    Sketcher.Constraint("Vertical", 28),
    Sketcher.Constraint("Horizontal", 29),
    Sketcher.Constraint("Vertical", 31),
    Sketcher.Constraint("Horizontal", 32),
    Sketcher.Constraint("Vertical", 33),
    Sketcher.Constraint("Horizontal", 34),
    Sketcher.Constraint("Vertical", 36),
    Sketcher.Constraint("Horizontal", 37),
    Sketcher.Constraint("Vertical", 38),
    Sketcher.Constraint("Horizontal", 39),
    Sketcher.Constraint("Equal", 4, 11),
    Sketcher.Constraint("Equal", 11, 18),
    Sketcher.Constraint("Equal", 18, 25),
    Sketcher.Constraint("Equal", 25, 30),
    Sketcher.Constraint("Equal", 30, 35),
    Sketcher.Constraint("Equal", 35, 40),
    Sketcher.Constraint("Horizontal", 4, 3, 11, 3),
    Sketcher.Constraint("Horizontal", 18, 3, 25, 3),
    Sketcher.Constraint("Horizontal", 30, 3, 35, 3),
    Sketcher.Constraint("Horizontal", 11, 3, 40, 3),
    Sketcher.Constraint("Horizontal", 1, 2, 7, 2),
    Sketcher.Constraint("Horizontal", 3, 2, 9, 2),
    Sketcher.Constraint("Horizontal", 17, 2, 19, 2),
    Sketcher.Constraint("Horizontal", 16, 2, 20, 2),
    Sketcher.Constraint("Horizontal", 14, 2, 22, 2),
    Sketcher.Constraint("Horizontal", 27, 2, 31, 2),
    Sketcher.Constraint("Horizontal", 29, 2, 33, 2),
    Sketcher.Constraint("Horizontal", 8, 2, 36, 2),
    Sketcher.Constraint("Horizontal", 10, 2, 38, 2),
    Sketcher.Constraint("Vertical", 11, 3, 18, 3),
    Sketcher.Constraint("Vertical", 4, 3, 30, 3),
    Sketcher.Constraint("Vertical", 25, 3, 35, 3),
    Sketcher.Constraint("Vertical", 35, 3, 40, 3),
    Sketcher.Constraint("Vertical", 9, 2, 12, 2),
    Sketcher.Constraint("Vertical", 7, 2, 14, 2),
    Sketcher.Constraint("Vertical", 10, 2, 16, 2),
    Sketcher.Constraint("Vertical", 3, 2, 26, 2),
    Sketcher.Constraint("Vertical", 2, 2, 27, 2),
    Sketcher.Constraint("Vertical", 22, 2, 31, 2),
    Sketcher.Constraint("Vertical", 20, 2, 32, 2),
    Sketcher.Constraint("Vertical", 34, 2, 36, 2),
    Sketcher.Constraint("Vertical", 33, 2, 37, 2),
    Sketcher.Constraint("Equal", 3, 6),
    Sketcher.Constraint("Equal", 6, 8),
    Sketcher.Constraint("Equal", 12, 19),
    Sketcher.Constraint("Equal", 16, 21),
    Sketcher.Constraint("Equal", 39, 0),
    Sketcher.Constraint("Equal", 19, 5),
    Sketcher.Constraint("Equal", 9, 13),
    Sketcher.Constraint("Equal", 13, 15),
    Sketcher.Constraint("Equal", 24, 26),
    Sketcher.Constraint("Diameter", 4, Q("3 mm")),
    Sketcher.Constraint("DistanceX", 1, 2, 1, 1, Q("5 mm")),
    Sketcher.Constraint("DistanceX", 4, 3, 11, 3, Q("63 mm")),
    Sketcher.Constraint("DistanceY", 18, 3, 11, 3, Q("93 mm")),
    Sketcher.Constraint("DistanceX", 25, 3, 4, 3, Q("51 mm")),
    Sketcher.Constraint("DistanceY", 0, 2, 30, 3, Q("73 mm")),
    Sketcher.Constraint("DistanceX", 0, 2, 5, 2, Q("63 mm")),
    Sketcher.Constraint("DistanceY", 12, 2, 6, 2, Q("88 mm")),
    Sketcher.Constraint("DistanceX", 19, 2, 1, 2, Q("51 mm")),
    Sketcher.Constraint("DistanceY", 4, 3, 26, 2, Q("68 mm")),
    Sketcher.Constraint("DistanceY", 4, 3, 30, 3, Q("70.5 mm")),
    Sketcher.Constraint("DistanceX", 4, 3, 0, 2, Q("2.5 mm")),
    Sketcher.Constraint("DistanceX", 4, 3, -1, 1, Q("104.38243 mm")),
    Sketcher.Constraint("DistanceY", -1, 1, 4, 3, Q("110.150558 mm")),
])
pad8 = body.newObject("PartDesign::Pad", "Pad007")
pad8.Profile = sketch12
pad8.Length = 3
pad8.Reversed = True
body3 = doc.addObject("PartDesign::Body", "Body002")

# Sketch on XY plane
sketch13 = body3.newObject("Sketcher::SketchObject", "Sketch012")
sketch13.AttachmentSupport = (doc.getObject("XY_Plane002"), [""])
sketch13.MapMode = "FlatFace"
sketch13.AttachmentOffset = App.Placement(V(0, 0, 22), App.Rotation())
add_polygon(sketch13, [(-101.88243, 178.150558), (-101.88243, 112.650558), (-106.88243, 112.650558), (-106.88243, 178.150558)])  # lines 0-3
sketch13.addConstraint([
    Sketcher.Constraint("Vertical", 0),
    Sketcher.Constraint("Horizontal", 1),
    Sketcher.Constraint("Vertical", 2),
    Sketcher.Constraint("Horizontal", 3),
    Sketcher.Constraint("DistanceX", 1, 2, 1, 1, Q("5 mm")),
    Sketcher.Constraint("DistanceY", 0, 2, 0, 1, Q("65.5 mm")),
    Sketcher.Constraint("DistanceX", 0, 2, -1, 1, Q("101.88243 mm")),
    Sketcher.Constraint("DistanceY", -1, 1, 0, 2, Q("112.650558 mm")),
])
pad9 = body3.newObject("PartDesign::Pad", "Pad008")
pad9.Profile = sketch13
pad9.Length = 3
body4 = doc.addObject("PartDesign::Body", "Body003")

# Sketch on XY plane
sketch14 = body4.newObject("Sketcher::SketchObject", "Sketch013")
sketch14.AttachmentSupport = (doc.getObject("XY_Plane003"), [""])
sketch14.MapMode = "FlatFace"
sketch14.AttachmentOffset = App.Placement(V(0, 0, 22), App.Rotation())
add_polygon(sketch14, [(-48.88243, 112.650558), (-48.88243, 107.650558), (-101.88243, 107.650558), (-101.88243, 112.650558)])  # lines 0-3
sketch14.addConstraint([
    Sketcher.Constraint("Vertical", 0),
    Sketcher.Constraint("Horizontal", 1),
    Sketcher.Constraint("Vertical", 2),
    Sketcher.Constraint("Horizontal", 3),
    Sketcher.Constraint("DistanceX", 1, 2, 1, 1, Q("53 mm")),
    Sketcher.Constraint("DistanceY", 0, 2, 0, 1, Q("5 mm")),
    Sketcher.Constraint("DistanceX", 0, 2, -1, 1, Q("48.88243 mm")),
    Sketcher.Constraint("DistanceY", -1, 1, 0, 2, Q("107.650558 mm")),
])
pad10 = body4.newObject("PartDesign::Pad", "Pad009")
pad10.Profile = sketch14
pad10.Length = 3
body5 = doc.addObject("PartDesign::Body", "Body004")

# Sketch on XY plane
sketch15 = body5.newObject("Sketcher::SketchObject", "Sketch014")
sketch15.AttachmentSupport = (doc.getObject("XY_Plane004"), [""])
sketch15.MapMode = "FlatFace"
sketch15.AttachmentOffset = App.Placement(V(0, 0, 22), App.Rotation())
add_polygon(sketch15, [(-38.88243, 102.650558), (-38.88243, 24.650558), (-43.88243, 24.650558), (-43.88243, 102.650558)])  # lines 0-3
sketch15.addConstraint([
    Sketcher.Constraint("Vertical", 0),
    Sketcher.Constraint("Horizontal", 1),
    Sketcher.Constraint("Vertical", 2),
    Sketcher.Constraint("Horizontal", 3),
    Sketcher.Constraint("DistanceX", 1, 2, 1, 1, Q("5 mm")),
    Sketcher.Constraint("DistanceY", 0, 2, 0, 1, Q("78 mm")),
    Sketcher.Constraint("DistanceX", 0, 2, -1, 1, Q("38.88243 mm")),
    Sketcher.Constraint("DistanceY", -1, 1, 0, 2, Q("24.650558 mm")),
])
pad11 = body5.newObject("PartDesign::Pad", "Pad010")
pad11.Profile = sketch15
pad11.Length = 3
body6 = doc.addObject("PartDesign::Body", "Body005")

# Sketch on XY plane
sketch16 = body6.newObject("Sketcher::SketchObject", "Sketch015")
sketch16.AttachmentSupport = (doc.getObject("XY_Plane005"), [""])
sketch16.MapMode = "FlatFace"
sketch16.AttachmentOffset = App.Placement(V(0, 0, 22), App.Rotation())
add_polygon(sketch16, [(-152.88243, 178.150558), (-152.88243, 112.650558), (-157.88243, 112.650558), (-157.88243, 178.150558)])  # lines 0-3
sketch16.addConstraint([
    Sketcher.Constraint("Vertical", 0),
    Sketcher.Constraint("Horizontal", 1),
    Sketcher.Constraint("Vertical", 2),
    Sketcher.Constraint("Horizontal", 3),
    Sketcher.Constraint("DistanceX", 1, 2, 1, 1, Q("5 mm")),
    Sketcher.Constraint("DistanceY", 0, 2, 0, 1, Q("65.5 mm")),
    Sketcher.Constraint("DistanceX", 0, 2, -1, 1, Q("152.88243 mm")),
    Sketcher.Constraint("DistanceY", -1, 1, 0, 2, Q("112.650558 mm")),
])
pad12 = body6.newObject("PartDesign::Pad", "Pad011")
pad12.Profile = sketch16
pad12.Length = 3
body7 = doc.addObject("PartDesign::Body", "Body006")

# Sketch on XY plane
sketch17 = body7.newObject("Sketcher::SketchObject", "Sketch016")
sketch17.AttachmentSupport = (doc.getObject("XY_Plane006"), [""])
sketch17.MapMode = "FlatFace"
sketch17.AttachmentOffset = App.Placement(V(0, 0, 22), App.Rotation())
add_polygon(sketch17, [(-152.88243, 107.650558), (-152.88243, 24.650558), (-157.88243, 24.650558), (-157.88243, 107.650558)])  # lines 0-3
sketch17.addConstraint([
    Sketcher.Constraint("Vertical", 0),
    Sketcher.Constraint("Horizontal", 1),
    Sketcher.Constraint("Vertical", 2),
    Sketcher.Constraint("Horizontal", 3),
    Sketcher.Constraint("DistanceX", 1, 2, 1, 1, Q("5 mm")),
    Sketcher.Constraint("DistanceY", 0, 2, 0, 1, Q("83 mm")),
    Sketcher.Constraint("DistanceX", 0, 2, -1, 1, Q("152.88243 mm")),
    Sketcher.Constraint("DistanceY", -1, 1, 0, 2, Q("24.650558 mm")),
])
pad13 = body7.newObject("PartDesign::Pad", "Pad012")
pad13.Profile = sketch17
pad13.Length = 3
body8 = doc.addObject("PartDesign::Body", "Body007")

# Sketch on XY plane
sketch18 = body8.newObject("Sketcher::SketchObject", "Sketch017")
sketch18.AttachmentSupport = (doc.getObject("XY_Plane007"), [""])
sketch18.MapMode = "FlatFace"
sketch18.AttachmentOffset = App.Placement(V(0, 0, 22), App.Rotation())
add_polygon(sketch18, [(-48.88243, 19.650558), (-48.88243, 14.650558), (-147.88243, 14.650558), (-147.88243, 19.650558)])  # lines 0-3
sketch18.addConstraint([
    Sketcher.Constraint("Vertical", 0),
    Sketcher.Constraint("Horizontal", 1),
    Sketcher.Constraint("Vertical", 2),
    Sketcher.Constraint("Horizontal", 3),
    Sketcher.Constraint("DistanceX", 1, 2, 1, 1, Q("99 mm")),
    Sketcher.Constraint("DistanceY", 0, 2, 0, 1, Q("5 mm")),
    Sketcher.Constraint("DistanceX", 0, 2, -1, 1, Q("48.88243 mm")),
    Sketcher.Constraint("DistanceY", -1, 1, 0, 2, Q("14.650558 mm")),
])
pad14 = body8.newObject("PartDesign::Pad", "Pad013")
pad14.Profile = sketch18
pad14.Length = 3

doc.recompute()
